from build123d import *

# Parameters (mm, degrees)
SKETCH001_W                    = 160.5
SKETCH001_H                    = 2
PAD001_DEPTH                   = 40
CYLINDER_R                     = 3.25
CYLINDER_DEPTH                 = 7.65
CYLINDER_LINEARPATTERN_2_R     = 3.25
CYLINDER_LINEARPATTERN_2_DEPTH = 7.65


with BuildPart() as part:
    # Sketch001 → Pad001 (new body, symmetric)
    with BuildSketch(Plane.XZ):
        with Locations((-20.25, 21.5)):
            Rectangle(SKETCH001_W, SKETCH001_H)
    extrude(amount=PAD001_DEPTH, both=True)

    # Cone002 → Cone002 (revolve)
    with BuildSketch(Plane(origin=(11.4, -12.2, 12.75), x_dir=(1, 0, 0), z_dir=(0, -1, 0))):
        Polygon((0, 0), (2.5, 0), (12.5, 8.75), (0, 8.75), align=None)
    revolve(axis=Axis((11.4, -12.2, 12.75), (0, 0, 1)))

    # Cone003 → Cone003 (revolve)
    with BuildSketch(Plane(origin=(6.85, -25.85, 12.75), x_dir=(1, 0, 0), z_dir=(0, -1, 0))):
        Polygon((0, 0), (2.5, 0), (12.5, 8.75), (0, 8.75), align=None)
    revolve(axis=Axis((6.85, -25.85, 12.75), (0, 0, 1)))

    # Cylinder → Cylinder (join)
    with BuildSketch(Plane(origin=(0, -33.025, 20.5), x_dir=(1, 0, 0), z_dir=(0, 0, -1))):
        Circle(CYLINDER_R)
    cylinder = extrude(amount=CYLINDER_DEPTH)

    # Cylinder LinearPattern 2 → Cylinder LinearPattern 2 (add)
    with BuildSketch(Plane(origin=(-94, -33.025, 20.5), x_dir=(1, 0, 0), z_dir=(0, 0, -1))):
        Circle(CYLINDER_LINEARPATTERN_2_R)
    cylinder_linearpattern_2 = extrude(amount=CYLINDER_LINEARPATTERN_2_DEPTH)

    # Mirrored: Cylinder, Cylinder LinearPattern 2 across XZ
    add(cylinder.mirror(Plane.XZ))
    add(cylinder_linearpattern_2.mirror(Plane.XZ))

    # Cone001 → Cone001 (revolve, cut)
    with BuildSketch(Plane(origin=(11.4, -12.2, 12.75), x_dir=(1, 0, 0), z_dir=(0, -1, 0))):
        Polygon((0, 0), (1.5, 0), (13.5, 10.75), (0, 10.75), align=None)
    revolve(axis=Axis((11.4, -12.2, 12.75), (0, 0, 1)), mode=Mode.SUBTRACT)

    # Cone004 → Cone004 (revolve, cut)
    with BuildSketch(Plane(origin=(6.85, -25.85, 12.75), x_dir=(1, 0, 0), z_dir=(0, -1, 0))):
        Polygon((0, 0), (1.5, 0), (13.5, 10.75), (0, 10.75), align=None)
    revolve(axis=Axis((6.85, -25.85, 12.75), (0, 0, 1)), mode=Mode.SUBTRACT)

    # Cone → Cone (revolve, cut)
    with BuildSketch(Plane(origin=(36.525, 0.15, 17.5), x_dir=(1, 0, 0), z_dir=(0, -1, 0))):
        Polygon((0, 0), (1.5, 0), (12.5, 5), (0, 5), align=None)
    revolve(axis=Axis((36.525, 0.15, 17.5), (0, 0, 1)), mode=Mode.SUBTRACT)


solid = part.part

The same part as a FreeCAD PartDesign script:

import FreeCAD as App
import Part
import Sketcher
from FreeCAD import Vector
Q = App.Units.Quantity


def add_polygon(sketch, points):
    """Adds a closed chain of lines whose ends are joined by coincident constraints."""
    first, n = sketch.GeometryCount, len(points)
    for a, b in zip(points, points[1:] + points[:1]):
        sketch.addGeometry(Part.LineSegment(App.Vector(*a, 0), App.Vector(*b, 0)), False)
    for i in range(n):
        sketch.addConstraint(Sketcher.Constraint("Coincident", first + i, 2, first + (i + 1) % n, 1))

doc = App.newDocument("Part")
body = doc.addObject("PartDesign::Body", "Body")

# Sketch on XZ plane
sketch1 = body.newObject("Sketcher::SketchObject", "Sketch")
sketch1.AttachmentSupport = (doc.getObject("XZ_Plane"), [""])
sketch1.MapMode = "FlatFace"
add_polygon(sketch1, [(-100.5, 22.5), (-100.5, 20.5), (60, 20.5), (60, 22.5)])  # lines 0-3
sketch1.addConstraint(Sketcher.Constraint("Vertical", 0))
sketch1.addConstraint(Sketcher.Constraint("Horizontal", 1))
sketch1.addConstraint(Sketcher.Constraint("Vertical", 2))
sketch1.addConstraint(Sketcher.Constraint("Horizontal", 3))
sketch1.addConstraint(Sketcher.Constraint("DistanceY", 0, 2, 0, 1, Q("2 mm")))
sketch1.addConstraint(Sketcher.Constraint("DistanceX", 1, 1, 1, 2, Q("160.5 mm")))
sketch1.addConstraint(Sketcher.Constraint("DistanceX", -1, 1, 1, 2, Q("60 mm")))
sketch1.addConstraint(Sketcher.Constraint("DistanceY", -1, 1, 0, 2, Q("20.5 mm")))
pad1 = body.newObject("PartDesign::Pad", "Pad")
pad1.Profile = sketch1
pad1.Length = 80
pad1.Midplane = True

# Sketch on XZ plane
sketch2 = body.newObject("Sketcher::SketchObject", "Sketch001")
sketch2.AttachmentSupport = (doc.getObject("XZ_Plane"), [""])
sketch2.MapMode = "FlatFace"
sketch2.AttachmentOffset = App.Placement(Vector(0, 0, 12.2), App.Rotation())
add_polygon(sketch2, [(11.4, 12.75), (13.9, 12.75), (23.9, 21.5), (11.4, 21.5)])  # lines 0-3
sketch2.addGeometry(Part.LineSegment(Vector(11.4, 12.75, 0), Vector(11.4, 21.5, 0)), True)  # axis
sketch2.addConstraint(Sketcher.Constraint("Horizontal", 0))
sketch2.addConstraint(Sketcher.Constraint("Horizontal", 2))
sketch2.addConstraint(Sketcher.Constraint("Vertical", 3))
sketch2.addConstraint(Sketcher.Constraint("Vertical", 4))
sketch2.addConstraint(Sketcher.Constraint("Coincident", 4, 1, 3, 2))
sketch2.addConstraint(Sketcher.Constraint("Horizontal", 1, 2, 4, 2))
sketch2.addConstraint(Sketcher.Constraint("DistanceX", 0, 1, 0, 2, Q("2.5 mm")))
sketch2.addConstraint(Sketcher.Constraint("DistanceX", 2, 2, 2, 1, Q("12.5 mm")))
sketch2.addConstraint(Sketcher.Constraint("DistanceY", 3, 2, 3, 1, Q("8.75 mm")))
sketch2.addConstraint(Sketcher.Constraint("DistanceX", -1, 1, 0, 2, Q("13.9 mm")))
sketch2.addConstraint(Sketcher.Constraint("DistanceY", -1, 1, 1, 2, Q("21.5 mm")))
revolution = body.newObject("PartDesign::Revolution", "Revolution")
revolution.Profile = sketch2
revolution.ReferenceAxis = (sketch2, ["Axis0"])
revolution.Angle = 360

# Sketch on XZ plane
sketch3 = body.newObject("Sketcher::SketchObject", "Sketch002")
sketch3.AttachmentSupport = (doc.getObject("XZ_Plane"), [""])
sketch3.MapMode = "FlatFace"
sketch3.AttachmentOffset = App.Placement(Vector(0, 0, 25.85), App.Rotation())
add_polygon(sketch3, [(6.85, 12.75), (9.35, 12.75), (19.35, 21.5), (6.85, 21.5)])  # lines 0-3
sketch3.addGeometry(Part.LineSegment(Vector(6.85, 12.75, 0), Vector(6.85, 21.5, 0)), True)  # axis
sketch3.addConstraint(Sketcher.Constraint("Horizontal", 0))
sketch3.addConstraint(Sketcher.Constraint("Horizontal", 2))
sketch3.addConstraint(Sketcher.Constraint("Vertical", 3))
sketch3.addConstraint(Sketcher.Constraint("Vertical", 4))
sketch3.addConstraint(Sketcher.Constraint("Coincident", 4, 1, 3, 2))
sketch3.addConstraint(Sketcher.Constraint("Horizontal", 1, 2, 4, 2))
sketch3.addConstraint(Sketcher.Constraint("DistanceX", 0, 1, 0, 2, Q("2.5 mm")))
sketch3.addConstraint(Sketcher.Constraint("DistanceX", 2, 2, 2, 1, Q("12.5 mm")))
sketch3.addConstraint(Sketcher.Constraint("DistanceY", 3, 2, 3, 1, Q("8.75 mm")))
sketch3.addConstraint(Sketcher.Constraint("DistanceY", -1, 1, 1, 2, Q("21.5 mm")))
sketch3.addConstraint(Sketcher.Constraint("DistanceX", -1, 1, 0, 2, Q("9.35 mm")))
revolution2 = body.newObject("PartDesign::Revolution", "Revolution001")
revolution2.Profile = sketch3
revolution2.ReferenceAxis = (sketch3, ["Axis0"])
revolution2.Angle = 360

# Sketch on XY plane
sketch4 = body.newObject("Sketcher::SketchObject", "Sketch003")
sketch4.AttachmentSupport = (doc.getObject("XY_Plane"), [""])
sketch4.MapMode = "FlatFace"
sketch4.AttachmentOffset = App.Placement(Vector(0, 0, 20.5), App.Rotation())
sketch4.addGeometry(Part.Circle(Vector(0, -33.025, 0), Vector(0, 0, 1), 3.25), False)
sketch4.addConstraint(Sketcher.Constraint("PointOnObject", 0, 3, -2))
sketch4.addConstraint(Sketcher.Constraint("Diameter", 0, Q("6.5 mm")))
sketch4.addConstraint(Sketcher.Constraint("DistanceY", 0, 3, -1, 1, Q("33.025 mm")))
pad2 = body.newObject("PartDesign::Pad", "Pad001")
pad2.Profile = sketch4
pad2.Length = 7.65
pad2.Reversed = True

# Sketch on XY plane
sketch5 = body.newObject("Sketcher::SketchObject", "Sketch004")
sketch5.AttachmentSupport = (doc.getObject("XY_Plane"), [""])
sketch5.MapMode = "FlatFace"
sketch5.AttachmentOffset = App.Placement(Vector(0, 0, 20.5), App.Rotation())
sketch5.addGeometry(Part.Circle(Vector(-94, -33.025, 0), Vector(0, 0, 1), 3.25), False)
sketch5.addConstraint(Sketcher.Constraint("Diameter", 0, Q("6.5 mm")))
sketch5.addConstraint(Sketcher.Constraint("DistanceX", 0, 3, -1, 1, Q("94 mm")))
sketch5.addConstraint(Sketcher.Constraint("DistanceY", 0, 3, -1, 1, Q("33.025 mm")))
pad3 = body.newObject("PartDesign::Pad", "Pad002")
pad3.Profile = sketch5
pad3.Length = 7.65
pad3.Reversed = True
doc.recompute()

mirrored = body.newObject("PartDesign::Mirrored", "Mirrored")
mirrored.Originals = [pad2, pad3]
mirrored.MirrorPlane = (doc.getObject("XZ_Plane"), [""])
body.Tip = mirrored

# Sketch on XZ plane
sketch6 = body.newObject("Sketcher::SketchObject", "Sketch005")
sketch6.AttachmentSupport = (doc.getObject("XZ_Plane"), [""])
sketch6.MapMode = "FlatFace"
sketch6.AttachmentOffset = App.Placement(Vector(0, 0, 12.2), App.Rotation())
add_polygon(sketch6, [(11.4, 12.75), (12.9, 12.75), (24.9, 23.5), (11.4, 23.5)])  # lines 0-3
sketch6.addGeometry(Part.LineSegment(Vector(11.4, 12.75, 0), Vector(11.4, 23.5, 0)), True)  # axis
sketch6.addConstraint(Sketcher.Constraint("Horizontal", 0))
sketch6.addConstraint(Sketcher.Constraint("Horizontal", 2))
sketch6.addConstraint(Sketcher.Constraint("Vertical", 3))
sketch6.addConstraint(Sketcher.Constraint("Vertical", 4))
sketch6.addConstraint(Sketcher.Constraint("Coincident", 4, 1, 3, 2))
sketch6.addConstraint(Sketcher.Constraint("Horizontal", 1, 2, 4, 2))
sketch6.addConstraint(Sketcher.Constraint("DistanceX", 0, 1, 0, 2, Q("1.5 mm")))
sketch6.addConstraint(Sketcher.Constraint("DistanceX", 2, 2, 2, 1, Q("13.5 mm")))
sketch6.addConstraint(Sketcher.Constraint("DistanceY", 3, 2, 3, 1, Q("10.75 mm")))
sketch6.addConstraint(Sketcher.Constraint("DistanceX", -1, 1, 0, 2, Q("12.9 mm")))
sketch6.addConstraint(Sketcher.Constraint("DistanceY", -1, 1, 1, 2, Q("23.5 mm")))
groove = body.newObject("PartDesign::Groove", "Groove")
groove.Profile = sketch6
groove.ReferenceAxis = (sketch6, ["Axis0"])
groove.Angle = 360

# Sketch on XZ plane
sketch7 = body.newObject("Sketcher::SketchObject", "Sketch006")
sketch7.AttachmentSupport = (doc.getObject("XZ_Plane"), [""])
sketch7.MapMode = "FlatFace"
sketch7.AttachmentOffset = App.Placement(Vector(0, 0, 25.85), App.Rotation())
add_polygon(sketch7, [(6.85, 12.75), (8.35, 12.75), (20.35, 23.5), (6.85, 23.5)])  # lines 0-3
sketch7.addGeometry(Part.LineSegment(Vector(6.85, 12.75, 0), Vector(6.85, 23.5, 0)), True)  # axis
sketch7.addConstraint(Sketcher.Constraint("Horizontal", 0))
sketch7.addConstraint(Sketcher.Constraint("Horizontal", 2))
sketch7.addConstraint(Sketcher.Constraint("Vertical", 3))
sketch7.addConstraint(Sketcher.Constraint("Vertical", 4))
sketch7.addConstraint(Sketcher.Constraint("Coincident", 4, 1, 3, 2))
sketch7.addConstraint(Sketcher.Constraint("Horizontal", 1, 2, 4, 2))
sketch7.addConstraint(Sketcher.Constraint("DistanceX", 0, 1, 0, 2, Q("1.5 mm")))
sketch7.addConstraint(Sketcher.Constraint("DistanceX", 2, 2, 2, 1, Q("13.5 mm")))
sketch7.addConstraint(Sketcher.Constraint("DistanceY", 3, 2, 3, 1, Q("10.75 mm")))
sketch7.addConstraint(Sketcher.Constraint("DistanceY", -1, 1, 1, 2, Q("23.5 mm")))
sketch7.addConstraint(Sketcher.Constraint("DistanceX", -1, 1, 0, 2, Q("8.35 mm")))
groove2 = body.newObject("PartDesign::Groove", "Groove001")
groove2.Profile = sketch7
groove2.ReferenceAxis = (sketch7, ["Axis0"])
groove2.Angle = 360

# Sketch on XZ plane
sketch8 = body.newObject("Sketcher::SketchObject", "Sketch007")
sketch8.AttachmentSupport = (doc.getObject("XZ_Plane"), [""])
sketch8.MapMode = "FlatFace"
sketch8.AttachmentOffset = App.Placement(Vector(0, 0, -0.15), App.Rotation())
add_polygon(sketch8, [(36.525, 17.5), (38.025, 17.5), (49.025, 22.5), (36.525, 22.5)])  # lines 0-3
sketch8.addGeometry(Part.LineSegment(Vector(36.525, 17.5, 0), Vector(36.525, 22.5, 0)), True)  # axis
sketch8.addConstraint(Sketcher.Constraint("Horizontal", 0))
sketch8.addConstraint(Sketcher.Constraint("Horizontal", 2))
sketch8.addConstraint(Sketcher.Constraint("Vertical", 3))
sketch8.addConstraint(Sketcher.Constraint("Vertical", 4))
sketch8.addConstraint(Sketcher.Constraint("Coincident", 4, 1, 3, 2))
sketch8.addConstraint(Sketcher.Constraint("Horizontal", 1, 2, 4, 2))
sketch8.addConstraint(Sketcher.Constraint("DistanceY", 3, 2, 3, 1, Q("5 mm")))
sketch8.addConstraint(Sketcher.Constraint("DistanceX", 0, 1, 0, 2, Q("1.5 mm")))
sketch8.addConstraint(Sketcher.Constraint("DistanceX", 2, 2, 2, 1, Q("12.5 mm")))
sketch8.addConstraint(Sketcher.Constraint("DistanceY", -1, 1, 0, 2, Q("17.5 mm")))
sketch8.addConstraint(Sketcher.Constraint("DistanceX", -1, 1, 0, 2, Q("38.025 mm")))
groove3 = body.newObject("PartDesign::Groove", "Groove002")
groove3.Profile = sketch8
groove3.ReferenceAxis = (sketch8, ["Axis0"])
groove3.Angle = 360

doc.recompute()
